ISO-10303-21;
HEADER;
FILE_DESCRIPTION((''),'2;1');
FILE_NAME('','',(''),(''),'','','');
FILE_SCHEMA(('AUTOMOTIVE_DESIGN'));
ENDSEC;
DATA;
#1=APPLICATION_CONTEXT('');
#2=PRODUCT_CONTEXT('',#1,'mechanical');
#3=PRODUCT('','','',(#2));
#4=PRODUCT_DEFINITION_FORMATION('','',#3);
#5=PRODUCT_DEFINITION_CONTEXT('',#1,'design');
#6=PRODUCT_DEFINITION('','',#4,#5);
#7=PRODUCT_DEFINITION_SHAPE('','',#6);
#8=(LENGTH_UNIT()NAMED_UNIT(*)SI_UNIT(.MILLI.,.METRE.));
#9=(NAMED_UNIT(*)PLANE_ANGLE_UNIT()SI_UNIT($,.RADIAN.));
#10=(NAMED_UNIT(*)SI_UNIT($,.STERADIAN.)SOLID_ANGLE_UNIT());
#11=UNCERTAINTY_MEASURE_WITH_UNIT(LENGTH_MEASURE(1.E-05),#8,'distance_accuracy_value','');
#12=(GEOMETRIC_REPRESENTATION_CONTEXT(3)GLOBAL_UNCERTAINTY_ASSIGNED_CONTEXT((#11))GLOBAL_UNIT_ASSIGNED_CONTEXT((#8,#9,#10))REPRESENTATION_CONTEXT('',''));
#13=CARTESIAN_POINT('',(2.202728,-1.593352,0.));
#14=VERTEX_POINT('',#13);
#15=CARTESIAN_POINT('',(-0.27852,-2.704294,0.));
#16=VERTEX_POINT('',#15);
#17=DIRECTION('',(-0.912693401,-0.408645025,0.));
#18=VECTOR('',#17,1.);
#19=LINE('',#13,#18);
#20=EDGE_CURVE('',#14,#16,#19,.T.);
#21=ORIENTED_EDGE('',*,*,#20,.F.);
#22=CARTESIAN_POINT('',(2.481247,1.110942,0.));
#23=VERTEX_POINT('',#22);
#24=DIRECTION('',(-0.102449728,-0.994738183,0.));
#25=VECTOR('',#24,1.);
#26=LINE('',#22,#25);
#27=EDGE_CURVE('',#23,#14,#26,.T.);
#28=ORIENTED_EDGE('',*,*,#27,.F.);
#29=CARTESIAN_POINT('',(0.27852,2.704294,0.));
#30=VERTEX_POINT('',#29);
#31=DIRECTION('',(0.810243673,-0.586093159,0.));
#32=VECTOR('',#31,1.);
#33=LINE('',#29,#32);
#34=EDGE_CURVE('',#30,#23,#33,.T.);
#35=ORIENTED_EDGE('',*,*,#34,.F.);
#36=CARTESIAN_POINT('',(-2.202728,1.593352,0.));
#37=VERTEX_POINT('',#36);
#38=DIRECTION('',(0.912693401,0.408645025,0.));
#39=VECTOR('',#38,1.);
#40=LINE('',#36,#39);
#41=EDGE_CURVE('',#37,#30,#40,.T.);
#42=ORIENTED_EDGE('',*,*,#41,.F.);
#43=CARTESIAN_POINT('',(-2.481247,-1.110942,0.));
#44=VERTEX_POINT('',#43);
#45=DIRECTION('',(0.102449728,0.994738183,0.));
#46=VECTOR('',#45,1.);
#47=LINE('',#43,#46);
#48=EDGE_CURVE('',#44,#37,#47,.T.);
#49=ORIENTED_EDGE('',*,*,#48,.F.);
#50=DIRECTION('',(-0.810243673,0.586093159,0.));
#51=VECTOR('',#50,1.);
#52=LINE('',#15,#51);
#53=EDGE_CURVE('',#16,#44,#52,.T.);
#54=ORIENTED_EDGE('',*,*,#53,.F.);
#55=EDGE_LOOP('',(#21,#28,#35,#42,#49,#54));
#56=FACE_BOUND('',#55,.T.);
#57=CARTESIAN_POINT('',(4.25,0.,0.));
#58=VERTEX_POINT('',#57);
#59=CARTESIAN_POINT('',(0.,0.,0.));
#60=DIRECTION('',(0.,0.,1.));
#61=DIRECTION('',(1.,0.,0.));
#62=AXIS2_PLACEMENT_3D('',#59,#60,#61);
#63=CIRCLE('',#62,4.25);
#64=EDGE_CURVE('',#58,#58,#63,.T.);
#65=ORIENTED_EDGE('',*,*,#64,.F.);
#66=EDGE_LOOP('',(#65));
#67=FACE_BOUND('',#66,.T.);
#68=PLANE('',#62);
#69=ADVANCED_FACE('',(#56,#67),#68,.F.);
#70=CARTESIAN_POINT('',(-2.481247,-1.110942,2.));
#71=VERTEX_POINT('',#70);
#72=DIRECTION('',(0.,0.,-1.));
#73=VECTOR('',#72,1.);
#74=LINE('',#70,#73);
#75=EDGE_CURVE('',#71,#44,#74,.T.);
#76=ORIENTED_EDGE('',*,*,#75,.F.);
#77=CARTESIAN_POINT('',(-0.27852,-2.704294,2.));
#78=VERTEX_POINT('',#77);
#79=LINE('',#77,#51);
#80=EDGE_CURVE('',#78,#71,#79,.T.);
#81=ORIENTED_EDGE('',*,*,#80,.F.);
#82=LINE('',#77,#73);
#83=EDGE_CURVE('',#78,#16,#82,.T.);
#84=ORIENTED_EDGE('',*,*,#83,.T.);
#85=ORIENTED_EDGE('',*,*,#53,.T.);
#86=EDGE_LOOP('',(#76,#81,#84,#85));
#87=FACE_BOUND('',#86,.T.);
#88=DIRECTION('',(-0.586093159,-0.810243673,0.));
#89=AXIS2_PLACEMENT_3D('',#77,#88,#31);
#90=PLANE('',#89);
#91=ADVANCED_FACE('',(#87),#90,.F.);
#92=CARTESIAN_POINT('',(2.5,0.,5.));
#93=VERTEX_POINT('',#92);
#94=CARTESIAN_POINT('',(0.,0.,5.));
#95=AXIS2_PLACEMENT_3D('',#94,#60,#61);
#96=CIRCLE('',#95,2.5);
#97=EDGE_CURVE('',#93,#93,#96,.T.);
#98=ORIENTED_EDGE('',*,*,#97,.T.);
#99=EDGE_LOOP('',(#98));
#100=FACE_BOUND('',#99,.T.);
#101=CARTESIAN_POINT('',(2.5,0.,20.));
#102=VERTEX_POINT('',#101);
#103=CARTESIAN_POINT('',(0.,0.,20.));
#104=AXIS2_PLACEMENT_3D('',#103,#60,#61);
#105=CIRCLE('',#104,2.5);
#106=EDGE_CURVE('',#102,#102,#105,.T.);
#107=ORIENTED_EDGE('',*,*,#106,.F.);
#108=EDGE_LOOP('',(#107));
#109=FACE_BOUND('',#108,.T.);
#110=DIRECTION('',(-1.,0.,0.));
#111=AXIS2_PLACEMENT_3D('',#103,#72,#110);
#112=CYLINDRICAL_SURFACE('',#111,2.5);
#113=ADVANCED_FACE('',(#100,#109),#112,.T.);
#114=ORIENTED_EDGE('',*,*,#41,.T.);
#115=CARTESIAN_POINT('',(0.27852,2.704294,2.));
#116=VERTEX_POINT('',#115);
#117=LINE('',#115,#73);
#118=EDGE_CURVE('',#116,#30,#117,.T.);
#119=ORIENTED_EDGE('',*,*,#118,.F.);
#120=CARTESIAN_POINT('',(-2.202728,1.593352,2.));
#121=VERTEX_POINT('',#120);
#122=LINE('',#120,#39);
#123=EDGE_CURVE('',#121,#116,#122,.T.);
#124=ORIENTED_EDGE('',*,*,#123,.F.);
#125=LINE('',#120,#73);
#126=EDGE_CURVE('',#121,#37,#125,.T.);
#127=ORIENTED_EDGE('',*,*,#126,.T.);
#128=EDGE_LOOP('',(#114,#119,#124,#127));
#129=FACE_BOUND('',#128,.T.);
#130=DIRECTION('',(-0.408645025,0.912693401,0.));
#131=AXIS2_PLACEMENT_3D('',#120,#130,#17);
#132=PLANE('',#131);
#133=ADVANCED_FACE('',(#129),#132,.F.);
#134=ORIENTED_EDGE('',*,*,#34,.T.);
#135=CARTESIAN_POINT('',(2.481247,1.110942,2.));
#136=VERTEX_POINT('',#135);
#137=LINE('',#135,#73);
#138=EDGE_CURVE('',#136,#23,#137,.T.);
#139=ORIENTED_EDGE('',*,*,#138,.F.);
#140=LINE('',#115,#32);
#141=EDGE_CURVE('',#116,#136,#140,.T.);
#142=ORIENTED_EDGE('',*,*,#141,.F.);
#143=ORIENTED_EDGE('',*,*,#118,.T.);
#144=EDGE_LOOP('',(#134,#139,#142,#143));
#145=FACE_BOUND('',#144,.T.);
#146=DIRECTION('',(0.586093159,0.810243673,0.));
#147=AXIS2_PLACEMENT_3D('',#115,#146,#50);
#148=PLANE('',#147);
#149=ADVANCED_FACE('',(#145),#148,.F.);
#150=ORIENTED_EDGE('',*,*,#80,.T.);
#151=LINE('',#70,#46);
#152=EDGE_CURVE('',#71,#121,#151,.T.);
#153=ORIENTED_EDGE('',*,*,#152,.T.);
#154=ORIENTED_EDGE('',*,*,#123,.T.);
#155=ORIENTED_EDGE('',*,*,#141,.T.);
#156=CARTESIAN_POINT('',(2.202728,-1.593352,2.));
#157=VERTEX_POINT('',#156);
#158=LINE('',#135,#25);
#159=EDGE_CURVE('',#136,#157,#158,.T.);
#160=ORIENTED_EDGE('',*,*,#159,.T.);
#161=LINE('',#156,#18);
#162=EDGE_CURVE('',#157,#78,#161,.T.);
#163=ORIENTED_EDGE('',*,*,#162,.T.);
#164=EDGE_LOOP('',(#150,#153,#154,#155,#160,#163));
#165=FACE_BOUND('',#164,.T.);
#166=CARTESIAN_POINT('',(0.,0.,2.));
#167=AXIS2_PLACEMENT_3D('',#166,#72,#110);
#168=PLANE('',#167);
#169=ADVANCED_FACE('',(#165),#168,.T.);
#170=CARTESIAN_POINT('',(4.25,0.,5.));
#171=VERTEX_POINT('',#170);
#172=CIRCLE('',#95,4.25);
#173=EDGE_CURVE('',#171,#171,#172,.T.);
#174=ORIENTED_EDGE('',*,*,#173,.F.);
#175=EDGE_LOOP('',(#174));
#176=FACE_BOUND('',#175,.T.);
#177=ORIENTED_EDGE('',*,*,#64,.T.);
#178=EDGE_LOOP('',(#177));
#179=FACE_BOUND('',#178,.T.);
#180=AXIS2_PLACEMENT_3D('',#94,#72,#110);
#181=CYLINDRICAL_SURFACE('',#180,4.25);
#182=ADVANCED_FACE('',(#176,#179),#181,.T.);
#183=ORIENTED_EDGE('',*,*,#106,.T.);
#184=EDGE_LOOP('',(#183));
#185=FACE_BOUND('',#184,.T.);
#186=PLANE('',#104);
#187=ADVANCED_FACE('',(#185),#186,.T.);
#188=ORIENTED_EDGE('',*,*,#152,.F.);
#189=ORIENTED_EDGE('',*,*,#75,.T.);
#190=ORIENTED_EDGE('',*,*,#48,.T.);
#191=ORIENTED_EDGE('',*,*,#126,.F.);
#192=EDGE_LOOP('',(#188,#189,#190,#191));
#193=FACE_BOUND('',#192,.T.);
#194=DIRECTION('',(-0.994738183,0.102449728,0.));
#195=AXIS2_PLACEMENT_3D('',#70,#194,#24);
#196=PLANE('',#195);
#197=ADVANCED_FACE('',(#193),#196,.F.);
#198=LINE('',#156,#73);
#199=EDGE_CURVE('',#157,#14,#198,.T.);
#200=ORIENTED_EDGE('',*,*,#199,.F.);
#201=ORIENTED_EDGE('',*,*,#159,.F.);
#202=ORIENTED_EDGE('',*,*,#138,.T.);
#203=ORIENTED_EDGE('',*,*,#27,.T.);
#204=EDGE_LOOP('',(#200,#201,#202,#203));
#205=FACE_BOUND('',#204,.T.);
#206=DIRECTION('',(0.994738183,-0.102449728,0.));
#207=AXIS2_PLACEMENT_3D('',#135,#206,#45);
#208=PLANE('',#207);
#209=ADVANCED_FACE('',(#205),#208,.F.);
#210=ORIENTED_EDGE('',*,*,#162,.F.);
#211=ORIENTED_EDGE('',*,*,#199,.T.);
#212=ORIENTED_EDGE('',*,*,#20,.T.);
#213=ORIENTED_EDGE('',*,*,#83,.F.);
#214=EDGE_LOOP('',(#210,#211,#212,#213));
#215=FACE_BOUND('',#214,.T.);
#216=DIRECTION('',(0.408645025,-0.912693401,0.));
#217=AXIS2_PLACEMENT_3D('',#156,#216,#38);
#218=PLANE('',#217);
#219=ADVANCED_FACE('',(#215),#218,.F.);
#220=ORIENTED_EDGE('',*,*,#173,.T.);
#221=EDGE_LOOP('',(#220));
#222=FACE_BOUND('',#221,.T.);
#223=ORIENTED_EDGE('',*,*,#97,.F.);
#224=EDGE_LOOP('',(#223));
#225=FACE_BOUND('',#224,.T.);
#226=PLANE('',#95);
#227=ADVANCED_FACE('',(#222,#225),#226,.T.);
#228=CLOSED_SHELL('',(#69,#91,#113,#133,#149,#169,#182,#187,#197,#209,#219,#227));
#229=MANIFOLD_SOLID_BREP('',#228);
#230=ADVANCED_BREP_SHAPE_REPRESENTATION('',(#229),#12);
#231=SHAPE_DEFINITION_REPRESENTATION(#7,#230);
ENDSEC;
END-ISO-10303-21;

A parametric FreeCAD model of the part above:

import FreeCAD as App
import Part
import Sketcher

V = App.Vector

doc = App.newDocument("Part")
params = doc.addObject("Spreadsheet::Sheet", "Params")
for row, (alias, value) in enumerate([
    ("sketch1_diameter", "8.5 mm"),
    ("pad1_length", "5 mm"),
    ("sketch2_diameter", "5 mm"),
    ("pad2_length", "15 mm"),
    ("pocket1_length", "2 mm"),
], start=1):
    params.set(f"A{row}", alias)
    params.set(f"B{row}", "=" + value)
    params.setAlias(f"B{row}", alias)

body = doc.addObject("PartDesign::Body", "Body")

# Sketch on XY plane
sketch1 = body.newObject("Sketcher::SketchObject", "Sketch")
sketch1.AttachmentSupport = (doc.getObject("XY_Plane"), [""])
sketch1.MapMode = "FlatFace"
sketch1.addGeometry(Part.Circle(V(0, 0, 0), V(0, 0, 1), 4.2), False)
sketch1.addConstraint([
    Sketcher.Constraint("Coincident", 0, 3, -1, 1),
    Sketcher.Constraint("Diameter", 0, 8.5),
])
sketch1.setExpression("Constraints[1]", "Params.sketch1_diameter")
pad1 = body.newObject("PartDesign::Pad", "Pad")
pad1.Profile = sketch1
pad1.setExpression("Length", "Params.pad1_length")

# Sketch on XY plane
sketch2 = body.newObject("Sketcher::SketchObject", "Sketch001")
sketch2.AttachmentSupport = (doc.getObject("XY_Plane"), [""])
sketch2.MapMode = "FlatFace"
sketch2.AttachmentOffset = App.Placement(V(0, 0, 5), App.Rotation())
sketch2.addGeometry(Part.Circle(V(0, 0, 0), V(0, 0, 1), 2.5), False)
sketch2.addConstraint([
    Sketcher.Constraint("Coincident", 0, 3, -1, 1),
    Sketcher.Constraint("Diameter", 0, 5.0),
])
sketch2.setExpression("Constraints[1]", "Params.sketch2_diameter")
pad2 = body.newObject("PartDesign::Pad", "Pad001")
pad2.Profile = sketch2
pad2.setExpression("Length", "Params.pad2_length")

# Sketch on XY plane
sketch3 = body.newObject("Sketcher::SketchObject", "Sketch002")
sketch3.AttachmentSupport = (doc.getObject("XY_Plane"), [""])
sketch3.MapMode = "FlatFace"
sketch3.addGeometry([
    Part.LineSegment(V(-2.5, -1.1, 0), V(-2.2, 1.6, 0)),  # 0
    Part.LineSegment(V(-2.2, 1.6, 0), V(0.3, 2.7, 0)),  # 1
    Part.LineSegment(V(0.3, 2.7, 0), V(2.5, 1.1, 0)),  # 2
    Part.LineSegment(V(2.5, 1.1, 0), V(2.2, -1.6, 0)),  # 3
    Part.LineSegment(V(2.2, -1.6, 0), V(-0.3, -2.7, 0)),  # 4
    Part.LineSegment(V(-0.3, -2.7, 0), V(-2.5, -1.1, 0)),  # 5
], False)
sketch3.addConstraint([
    Sketcher.Constraint("Coincident", 0, 2, 1, 1),
    Sketcher.Constraint("Coincident", 1, 2, 2, 1),
    Sketcher.Constraint("Coincident", 2, 2, 3, 1),
    Sketcher.Constraint("Coincident", 3, 2, 4, 1),
    Sketcher.Constraint("Coincident", 4, 2, 5, 1),
    Sketcher.Constraint("Coincident", 5, 2, 0, 1),
    Sketcher.Constraint("Symmetric", 0, 2, 3, 2, -1, 1),
    Sketcher.Constraint("Symmetric", 1, 2, 4, 2, -1, 1),
    Sketcher.Constraint("Symmetric", 2, 2, 5, 2, -1, 1),
    Sketcher.Constraint("Equal", 0, 1),
    Sketcher.Constraint("Equal", 1, 2),
    Sketcher.Constraint("Distance", 0, 2.718599),
    Sketcher.Constraint("DistanceX", -1, 1, 1, 2, 0.27852),
    Sketcher.Constraint("DistanceY", -1, 1, 2, 2, 1.110942),
    Sketcher.Constraint("DistanceY", 0, 2, 1, 2, 1.110942),
])
pocket1 = body.newObject("PartDesign::Pocket", "Pocket")
pocket1.Profile = sketch3
pocket1.setExpression("Length", "Params.pocket1_length")
pocket1.Reversed = True

doc.recompute()
